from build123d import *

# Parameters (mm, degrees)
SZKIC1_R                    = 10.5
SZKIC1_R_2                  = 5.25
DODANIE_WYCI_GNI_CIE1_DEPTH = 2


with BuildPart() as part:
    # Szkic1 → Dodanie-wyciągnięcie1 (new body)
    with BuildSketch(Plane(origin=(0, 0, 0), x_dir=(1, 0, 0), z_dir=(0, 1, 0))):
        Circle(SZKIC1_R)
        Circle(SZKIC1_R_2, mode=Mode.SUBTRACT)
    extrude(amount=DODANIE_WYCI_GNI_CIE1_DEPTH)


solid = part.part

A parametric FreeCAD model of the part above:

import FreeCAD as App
import Part
import Sketcher
from FreeCAD import Vector
Q = App.Units.Quantity

doc = App.newDocument("Part")
body = doc.addObject("PartDesign::Body", "Body")

sketch1 = body.newObject("Sketcher::SketchObject", "Sketch")
sketch1.AttachmentSupport = (doc.getObject("XZ_Plane"), [""])
sketch1.MapMode = "FlatFace"
sketch1.addGeometry([
    Part.Circle(Vector(0, 0, 0), Vector(0, 0, 1), 10.5),
    Part.Circle(Vector(0, 0, 0), Vector(0, 0, 1), 5.25),
], False)
sketch1.addConstraint([
    Sketcher.Constraint("Coincident", 0, 3, -1, 1),
    Sketcher.Constraint("Coincident", 1, 3, -1, 1),
    Sketcher.Constraint("Diameter", 0, Q("21 mm")),
    Sketcher.Constraint("Diameter", 1, Q("10.5 mm")),
])
pad1 = body.newObject("PartDesign::Pad", "Pad")
pad1.Profile = sketch1
pad1.Length = 2
pad1.Reversed = True

doc.recompute()
